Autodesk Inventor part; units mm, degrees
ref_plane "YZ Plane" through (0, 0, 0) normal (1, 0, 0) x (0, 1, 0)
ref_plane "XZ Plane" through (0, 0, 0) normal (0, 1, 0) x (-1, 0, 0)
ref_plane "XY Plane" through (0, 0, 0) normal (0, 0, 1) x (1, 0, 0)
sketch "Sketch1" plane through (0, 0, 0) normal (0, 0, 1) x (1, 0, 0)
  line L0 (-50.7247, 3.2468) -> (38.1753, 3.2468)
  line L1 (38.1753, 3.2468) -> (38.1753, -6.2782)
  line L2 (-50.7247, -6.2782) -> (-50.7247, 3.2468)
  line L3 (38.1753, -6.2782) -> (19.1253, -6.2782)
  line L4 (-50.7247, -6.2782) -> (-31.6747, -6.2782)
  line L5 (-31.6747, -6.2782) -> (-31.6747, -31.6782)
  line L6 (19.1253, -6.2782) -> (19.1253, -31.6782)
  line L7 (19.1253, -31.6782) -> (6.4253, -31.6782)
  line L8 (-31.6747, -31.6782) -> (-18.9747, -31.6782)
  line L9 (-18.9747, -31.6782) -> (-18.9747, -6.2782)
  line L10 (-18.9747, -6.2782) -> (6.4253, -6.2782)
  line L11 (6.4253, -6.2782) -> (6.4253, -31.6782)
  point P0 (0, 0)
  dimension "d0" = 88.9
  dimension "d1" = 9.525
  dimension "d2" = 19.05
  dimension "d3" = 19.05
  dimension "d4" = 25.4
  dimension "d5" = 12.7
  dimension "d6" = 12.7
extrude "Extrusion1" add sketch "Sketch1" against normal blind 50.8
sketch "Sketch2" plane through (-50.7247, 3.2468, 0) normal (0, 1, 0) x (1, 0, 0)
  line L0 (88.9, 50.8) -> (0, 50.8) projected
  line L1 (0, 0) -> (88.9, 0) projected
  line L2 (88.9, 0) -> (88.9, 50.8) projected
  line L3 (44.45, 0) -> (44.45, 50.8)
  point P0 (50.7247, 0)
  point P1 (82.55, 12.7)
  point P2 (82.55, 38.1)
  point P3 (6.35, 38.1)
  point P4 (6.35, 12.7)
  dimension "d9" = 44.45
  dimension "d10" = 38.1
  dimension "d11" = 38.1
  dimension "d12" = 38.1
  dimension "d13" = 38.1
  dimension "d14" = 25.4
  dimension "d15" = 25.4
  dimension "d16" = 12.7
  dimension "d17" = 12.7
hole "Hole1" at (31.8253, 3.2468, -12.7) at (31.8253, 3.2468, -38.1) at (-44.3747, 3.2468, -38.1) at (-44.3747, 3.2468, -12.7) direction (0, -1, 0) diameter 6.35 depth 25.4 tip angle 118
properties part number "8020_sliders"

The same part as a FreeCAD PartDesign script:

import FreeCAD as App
import Part
import Sketcher
from FreeCAD import Vector
Q = App.Units.Quantity

doc = App.newDocument("Part")
body = doc.addObject("PartDesign::Body", "Body")

sketch1 = body.newObject("Sketcher::SketchObject", "Sketch")
sketch1.AttachmentSupport = (doc.getObject("XY_Plane"), [""])
sketch1.MapMode = "FlatFace"
sketch1.addGeometry(Part.LineSegment(Vector(38, 3, 0), Vector(-51, 3, 0)), False)
sketch1.addGeometry(Part.LineSegment(Vector(-51, 3, 0), Vector(-51, -6, 0)), False)
sketch1.addGeometry(Part.LineSegment(Vector(-51, -6, 0), Vector(-32, -6, 0)), False)
sketch1.addGeometry(Part.LineSegment(Vector(-32, -6, 0), Vector(-32, -32, 0)), False)
sketch1.addGeometry(Part.LineSegment(Vector(-32, -32, 0), Vector(-19, -32, 0)), False)
sketch1.addGeometry(Part.LineSegment(Vector(-19, -32, 0), Vector(-19, -6, 0)), False)
sketch1.addGeometry(Part.LineSegment(Vector(-19, -6, 0), Vector(6, -6, 0)), False)
sketch1.addGeometry(Part.LineSegment(Vector(6, -6, 0), Vector(6, -32, 0)), False)
sketch1.addGeometry(Part.LineSegment(Vector(6, -32, 0), Vector(19, -32, 0)), False)
sketch1.addGeometry(Part.LineSegment(Vector(19, -32, 0), Vector(19, -6, 0)), False)
sketch1.addGeometry(Part.LineSegment(Vector(19, -6, 0), Vector(38, -6, 0)), False)
sketch1.addGeometry(Part.LineSegment(Vector(38, -6, 0), Vector(38, 3, 0)), False)
sketch1.addConstraint(Sketcher.Constraint("Coincident", 0, 2, 1, 1))
sketch1.addConstraint(Sketcher.Constraint("Coincident", 1, 2, 2, 1))
sketch1.addConstraint(Sketcher.Constraint("Coincident", 2, 2, 3, 1))
sketch1.addConstraint(Sketcher.Constraint("Coincident", 3, 2, 4, 1))
sketch1.addConstraint(Sketcher.Constraint("Coincident", 4, 2, 5, 1))
sketch1.addConstraint(Sketcher.Constraint("Coincident", 5, 2, 6, 1))
sketch1.addConstraint(Sketcher.Constraint("Coincident", 6, 2, 7, 1))
sketch1.addConstraint(Sketcher.Constraint("Coincident", 7, 2, 8, 1))
sketch1.addConstraint(Sketcher.Constraint("Coincident", 8, 2, 9, 1))
sketch1.addConstraint(Sketcher.Constraint("Coincident", 9, 2, 10, 1))
sketch1.addConstraint(Sketcher.Constraint("Coincident", 10, 2, 11, 1))
sketch1.addConstraint(Sketcher.Constraint("Coincident", 11, 2, 0, 1))
sketch1.addConstraint(Sketcher.Constraint("Horizontal", 0))
sketch1.addConstraint(Sketcher.Constraint("Vertical", 1))
sketch1.addConstraint(Sketcher.Constraint("Horizontal", 2))
sketch1.addConstraint(Sketcher.Constraint("Vertical", 3))
sketch1.addConstraint(Sketcher.Constraint("Horizontal", 4))
sketch1.addConstraint(Sketcher.Constraint("Vertical", 5))
sketch1.addConstraint(Sketcher.Constraint("Horizontal", 6))
sketch1.addConstraint(Sketcher.Constraint("Vertical", 7))
sketch1.addConstraint(Sketcher.Constraint("Horizontal", 8))
sketch1.addConstraint(Sketcher.Constraint("Vertical", 9))
sketch1.addConstraint(Sketcher.Constraint("Horizontal", 10))
sketch1.addConstraint(Sketcher.Constraint("Vertical", 11))
sketch1.addConstraint(Sketcher.Constraint("Horizontal", 2, 2, 5, 2))
sketch1.addConstraint(Sketcher.Constraint("Horizontal", 4, 2, 7, 2))
sketch1.addConstraint(Sketcher.Constraint("Horizontal", 6, 2, 9, 2))
sketch1.addConstraint(Sketcher.Constraint("Equal", 4, 8))
sketch1.addConstraint(Sketcher.Constraint("Equal", 2, 10))
sketch1.addConstraint(Sketcher.Constraint("Equal", 6, 3))
sketch1.addConstraint(Sketcher.Constraint("DistanceX", 6, 1, 6, 2, Q("1 in")))
sketch1.addConstraint(Sketcher.Constraint("DistanceX", 0, 2, 0, 1, Q("3.5 in")))
sketch1.addConstraint(Sketcher.Constraint("DistanceX", 4, 1, 4, 2, Q("0.5 in")))
sketch1.addConstraint(Sketcher.Constraint("DistanceY", 1, 2, 1, 1, Q("0.375 in")))
sketch1.addConstraint(Sketcher.Constraint("DistanceX", 0, 2, -1, 1, 50.7247))
sketch1.addConstraint(Sketcher.Constraint("DistanceY", -1, 1, 0, 2, 3.2468))
pad1 = body.newObject("PartDesign::Pad", "Pad")
pad1.Profile = sketch1
pad1.Length = Q("2 in")
pad1.Reversed = True

sketch2 = body.newObject("Sketcher::SketchObject", "Sketch001")
sketch2.AttachmentSupport = (doc.getObject("XZ_Plane"), [""])
sketch2.MapMode = "FlatFace"
sketch2.AttachmentOffset = App.Placement(Vector(0, 0, -3.2468), App.Rotation())
sketch2.addGeometry(Part.Circle(Vector(31.8, -12.7, 0), Vector(0, 0, 1), 3.2), False)
sketch2.addGeometry(Part.Circle(Vector(31.8, -38.1, 0), Vector(0, 0, 1), 3.2), False)
sketch2.addGeometry(Part.Circle(Vector(-44.4, -38.1, 0), Vector(0, 0, 1), 3.2), False)
sketch2.addGeometry(Part.Circle(Vector(-44.4, -12.7, 0), Vector(0, 0, 1), 3.2), False)
sketch2.addConstraint(Sketcher.Constraint("Equal", 0, 1))
sketch2.addConstraint(Sketcher.Constraint("Equal", 1, 2))
sketch2.addConstraint(Sketcher.Constraint("Equal", 2, 3))
sketch2.addConstraint(Sketcher.Constraint("Horizontal", 1, 3, 2, 3))
sketch2.addConstraint(Sketcher.Constraint("Horizontal", 0, 3, 3, 3))
sketch2.addConstraint(Sketcher.Constraint("Vertical", 0, 3, 1, 3))
sketch2.addConstraint(Sketcher.Constraint("Vertical", 2, 3, 3, 3))
sketch2.addConstraint(Sketcher.Constraint("Diameter", 0, Q("0.25 in")))
sketch2.addConstraint(Sketcher.Constraint("DistanceY", 1, 3, 0, 3, Q("1 in")))
sketch2.addConstraint(Sketcher.Constraint("DistanceX", 2, 3, 1, 3, Q("3 in")))
sketch2.addConstraint(Sketcher.Constraint("DistanceY", 0, 3, -1, 1, Q("0.5 in")))
sketch2.addConstraint(Sketcher.Constraint("DistanceX", -1, 1, 0, 3, 31.8253))
doc.recompute()
hole = body.newObject("PartDesign::Hole", "Hole")
hole.Profile = sketch2
hole.ThreadType = "None"
hole.Diameter = Q("0.25 in")
hole.DepthType = "Dimension"
hole.Depth = Q("1 in")
hole.DrillPoint = "Angled"
hole.DrillPointAngle = 118
hole.Reversed = True

doc.recompute()
